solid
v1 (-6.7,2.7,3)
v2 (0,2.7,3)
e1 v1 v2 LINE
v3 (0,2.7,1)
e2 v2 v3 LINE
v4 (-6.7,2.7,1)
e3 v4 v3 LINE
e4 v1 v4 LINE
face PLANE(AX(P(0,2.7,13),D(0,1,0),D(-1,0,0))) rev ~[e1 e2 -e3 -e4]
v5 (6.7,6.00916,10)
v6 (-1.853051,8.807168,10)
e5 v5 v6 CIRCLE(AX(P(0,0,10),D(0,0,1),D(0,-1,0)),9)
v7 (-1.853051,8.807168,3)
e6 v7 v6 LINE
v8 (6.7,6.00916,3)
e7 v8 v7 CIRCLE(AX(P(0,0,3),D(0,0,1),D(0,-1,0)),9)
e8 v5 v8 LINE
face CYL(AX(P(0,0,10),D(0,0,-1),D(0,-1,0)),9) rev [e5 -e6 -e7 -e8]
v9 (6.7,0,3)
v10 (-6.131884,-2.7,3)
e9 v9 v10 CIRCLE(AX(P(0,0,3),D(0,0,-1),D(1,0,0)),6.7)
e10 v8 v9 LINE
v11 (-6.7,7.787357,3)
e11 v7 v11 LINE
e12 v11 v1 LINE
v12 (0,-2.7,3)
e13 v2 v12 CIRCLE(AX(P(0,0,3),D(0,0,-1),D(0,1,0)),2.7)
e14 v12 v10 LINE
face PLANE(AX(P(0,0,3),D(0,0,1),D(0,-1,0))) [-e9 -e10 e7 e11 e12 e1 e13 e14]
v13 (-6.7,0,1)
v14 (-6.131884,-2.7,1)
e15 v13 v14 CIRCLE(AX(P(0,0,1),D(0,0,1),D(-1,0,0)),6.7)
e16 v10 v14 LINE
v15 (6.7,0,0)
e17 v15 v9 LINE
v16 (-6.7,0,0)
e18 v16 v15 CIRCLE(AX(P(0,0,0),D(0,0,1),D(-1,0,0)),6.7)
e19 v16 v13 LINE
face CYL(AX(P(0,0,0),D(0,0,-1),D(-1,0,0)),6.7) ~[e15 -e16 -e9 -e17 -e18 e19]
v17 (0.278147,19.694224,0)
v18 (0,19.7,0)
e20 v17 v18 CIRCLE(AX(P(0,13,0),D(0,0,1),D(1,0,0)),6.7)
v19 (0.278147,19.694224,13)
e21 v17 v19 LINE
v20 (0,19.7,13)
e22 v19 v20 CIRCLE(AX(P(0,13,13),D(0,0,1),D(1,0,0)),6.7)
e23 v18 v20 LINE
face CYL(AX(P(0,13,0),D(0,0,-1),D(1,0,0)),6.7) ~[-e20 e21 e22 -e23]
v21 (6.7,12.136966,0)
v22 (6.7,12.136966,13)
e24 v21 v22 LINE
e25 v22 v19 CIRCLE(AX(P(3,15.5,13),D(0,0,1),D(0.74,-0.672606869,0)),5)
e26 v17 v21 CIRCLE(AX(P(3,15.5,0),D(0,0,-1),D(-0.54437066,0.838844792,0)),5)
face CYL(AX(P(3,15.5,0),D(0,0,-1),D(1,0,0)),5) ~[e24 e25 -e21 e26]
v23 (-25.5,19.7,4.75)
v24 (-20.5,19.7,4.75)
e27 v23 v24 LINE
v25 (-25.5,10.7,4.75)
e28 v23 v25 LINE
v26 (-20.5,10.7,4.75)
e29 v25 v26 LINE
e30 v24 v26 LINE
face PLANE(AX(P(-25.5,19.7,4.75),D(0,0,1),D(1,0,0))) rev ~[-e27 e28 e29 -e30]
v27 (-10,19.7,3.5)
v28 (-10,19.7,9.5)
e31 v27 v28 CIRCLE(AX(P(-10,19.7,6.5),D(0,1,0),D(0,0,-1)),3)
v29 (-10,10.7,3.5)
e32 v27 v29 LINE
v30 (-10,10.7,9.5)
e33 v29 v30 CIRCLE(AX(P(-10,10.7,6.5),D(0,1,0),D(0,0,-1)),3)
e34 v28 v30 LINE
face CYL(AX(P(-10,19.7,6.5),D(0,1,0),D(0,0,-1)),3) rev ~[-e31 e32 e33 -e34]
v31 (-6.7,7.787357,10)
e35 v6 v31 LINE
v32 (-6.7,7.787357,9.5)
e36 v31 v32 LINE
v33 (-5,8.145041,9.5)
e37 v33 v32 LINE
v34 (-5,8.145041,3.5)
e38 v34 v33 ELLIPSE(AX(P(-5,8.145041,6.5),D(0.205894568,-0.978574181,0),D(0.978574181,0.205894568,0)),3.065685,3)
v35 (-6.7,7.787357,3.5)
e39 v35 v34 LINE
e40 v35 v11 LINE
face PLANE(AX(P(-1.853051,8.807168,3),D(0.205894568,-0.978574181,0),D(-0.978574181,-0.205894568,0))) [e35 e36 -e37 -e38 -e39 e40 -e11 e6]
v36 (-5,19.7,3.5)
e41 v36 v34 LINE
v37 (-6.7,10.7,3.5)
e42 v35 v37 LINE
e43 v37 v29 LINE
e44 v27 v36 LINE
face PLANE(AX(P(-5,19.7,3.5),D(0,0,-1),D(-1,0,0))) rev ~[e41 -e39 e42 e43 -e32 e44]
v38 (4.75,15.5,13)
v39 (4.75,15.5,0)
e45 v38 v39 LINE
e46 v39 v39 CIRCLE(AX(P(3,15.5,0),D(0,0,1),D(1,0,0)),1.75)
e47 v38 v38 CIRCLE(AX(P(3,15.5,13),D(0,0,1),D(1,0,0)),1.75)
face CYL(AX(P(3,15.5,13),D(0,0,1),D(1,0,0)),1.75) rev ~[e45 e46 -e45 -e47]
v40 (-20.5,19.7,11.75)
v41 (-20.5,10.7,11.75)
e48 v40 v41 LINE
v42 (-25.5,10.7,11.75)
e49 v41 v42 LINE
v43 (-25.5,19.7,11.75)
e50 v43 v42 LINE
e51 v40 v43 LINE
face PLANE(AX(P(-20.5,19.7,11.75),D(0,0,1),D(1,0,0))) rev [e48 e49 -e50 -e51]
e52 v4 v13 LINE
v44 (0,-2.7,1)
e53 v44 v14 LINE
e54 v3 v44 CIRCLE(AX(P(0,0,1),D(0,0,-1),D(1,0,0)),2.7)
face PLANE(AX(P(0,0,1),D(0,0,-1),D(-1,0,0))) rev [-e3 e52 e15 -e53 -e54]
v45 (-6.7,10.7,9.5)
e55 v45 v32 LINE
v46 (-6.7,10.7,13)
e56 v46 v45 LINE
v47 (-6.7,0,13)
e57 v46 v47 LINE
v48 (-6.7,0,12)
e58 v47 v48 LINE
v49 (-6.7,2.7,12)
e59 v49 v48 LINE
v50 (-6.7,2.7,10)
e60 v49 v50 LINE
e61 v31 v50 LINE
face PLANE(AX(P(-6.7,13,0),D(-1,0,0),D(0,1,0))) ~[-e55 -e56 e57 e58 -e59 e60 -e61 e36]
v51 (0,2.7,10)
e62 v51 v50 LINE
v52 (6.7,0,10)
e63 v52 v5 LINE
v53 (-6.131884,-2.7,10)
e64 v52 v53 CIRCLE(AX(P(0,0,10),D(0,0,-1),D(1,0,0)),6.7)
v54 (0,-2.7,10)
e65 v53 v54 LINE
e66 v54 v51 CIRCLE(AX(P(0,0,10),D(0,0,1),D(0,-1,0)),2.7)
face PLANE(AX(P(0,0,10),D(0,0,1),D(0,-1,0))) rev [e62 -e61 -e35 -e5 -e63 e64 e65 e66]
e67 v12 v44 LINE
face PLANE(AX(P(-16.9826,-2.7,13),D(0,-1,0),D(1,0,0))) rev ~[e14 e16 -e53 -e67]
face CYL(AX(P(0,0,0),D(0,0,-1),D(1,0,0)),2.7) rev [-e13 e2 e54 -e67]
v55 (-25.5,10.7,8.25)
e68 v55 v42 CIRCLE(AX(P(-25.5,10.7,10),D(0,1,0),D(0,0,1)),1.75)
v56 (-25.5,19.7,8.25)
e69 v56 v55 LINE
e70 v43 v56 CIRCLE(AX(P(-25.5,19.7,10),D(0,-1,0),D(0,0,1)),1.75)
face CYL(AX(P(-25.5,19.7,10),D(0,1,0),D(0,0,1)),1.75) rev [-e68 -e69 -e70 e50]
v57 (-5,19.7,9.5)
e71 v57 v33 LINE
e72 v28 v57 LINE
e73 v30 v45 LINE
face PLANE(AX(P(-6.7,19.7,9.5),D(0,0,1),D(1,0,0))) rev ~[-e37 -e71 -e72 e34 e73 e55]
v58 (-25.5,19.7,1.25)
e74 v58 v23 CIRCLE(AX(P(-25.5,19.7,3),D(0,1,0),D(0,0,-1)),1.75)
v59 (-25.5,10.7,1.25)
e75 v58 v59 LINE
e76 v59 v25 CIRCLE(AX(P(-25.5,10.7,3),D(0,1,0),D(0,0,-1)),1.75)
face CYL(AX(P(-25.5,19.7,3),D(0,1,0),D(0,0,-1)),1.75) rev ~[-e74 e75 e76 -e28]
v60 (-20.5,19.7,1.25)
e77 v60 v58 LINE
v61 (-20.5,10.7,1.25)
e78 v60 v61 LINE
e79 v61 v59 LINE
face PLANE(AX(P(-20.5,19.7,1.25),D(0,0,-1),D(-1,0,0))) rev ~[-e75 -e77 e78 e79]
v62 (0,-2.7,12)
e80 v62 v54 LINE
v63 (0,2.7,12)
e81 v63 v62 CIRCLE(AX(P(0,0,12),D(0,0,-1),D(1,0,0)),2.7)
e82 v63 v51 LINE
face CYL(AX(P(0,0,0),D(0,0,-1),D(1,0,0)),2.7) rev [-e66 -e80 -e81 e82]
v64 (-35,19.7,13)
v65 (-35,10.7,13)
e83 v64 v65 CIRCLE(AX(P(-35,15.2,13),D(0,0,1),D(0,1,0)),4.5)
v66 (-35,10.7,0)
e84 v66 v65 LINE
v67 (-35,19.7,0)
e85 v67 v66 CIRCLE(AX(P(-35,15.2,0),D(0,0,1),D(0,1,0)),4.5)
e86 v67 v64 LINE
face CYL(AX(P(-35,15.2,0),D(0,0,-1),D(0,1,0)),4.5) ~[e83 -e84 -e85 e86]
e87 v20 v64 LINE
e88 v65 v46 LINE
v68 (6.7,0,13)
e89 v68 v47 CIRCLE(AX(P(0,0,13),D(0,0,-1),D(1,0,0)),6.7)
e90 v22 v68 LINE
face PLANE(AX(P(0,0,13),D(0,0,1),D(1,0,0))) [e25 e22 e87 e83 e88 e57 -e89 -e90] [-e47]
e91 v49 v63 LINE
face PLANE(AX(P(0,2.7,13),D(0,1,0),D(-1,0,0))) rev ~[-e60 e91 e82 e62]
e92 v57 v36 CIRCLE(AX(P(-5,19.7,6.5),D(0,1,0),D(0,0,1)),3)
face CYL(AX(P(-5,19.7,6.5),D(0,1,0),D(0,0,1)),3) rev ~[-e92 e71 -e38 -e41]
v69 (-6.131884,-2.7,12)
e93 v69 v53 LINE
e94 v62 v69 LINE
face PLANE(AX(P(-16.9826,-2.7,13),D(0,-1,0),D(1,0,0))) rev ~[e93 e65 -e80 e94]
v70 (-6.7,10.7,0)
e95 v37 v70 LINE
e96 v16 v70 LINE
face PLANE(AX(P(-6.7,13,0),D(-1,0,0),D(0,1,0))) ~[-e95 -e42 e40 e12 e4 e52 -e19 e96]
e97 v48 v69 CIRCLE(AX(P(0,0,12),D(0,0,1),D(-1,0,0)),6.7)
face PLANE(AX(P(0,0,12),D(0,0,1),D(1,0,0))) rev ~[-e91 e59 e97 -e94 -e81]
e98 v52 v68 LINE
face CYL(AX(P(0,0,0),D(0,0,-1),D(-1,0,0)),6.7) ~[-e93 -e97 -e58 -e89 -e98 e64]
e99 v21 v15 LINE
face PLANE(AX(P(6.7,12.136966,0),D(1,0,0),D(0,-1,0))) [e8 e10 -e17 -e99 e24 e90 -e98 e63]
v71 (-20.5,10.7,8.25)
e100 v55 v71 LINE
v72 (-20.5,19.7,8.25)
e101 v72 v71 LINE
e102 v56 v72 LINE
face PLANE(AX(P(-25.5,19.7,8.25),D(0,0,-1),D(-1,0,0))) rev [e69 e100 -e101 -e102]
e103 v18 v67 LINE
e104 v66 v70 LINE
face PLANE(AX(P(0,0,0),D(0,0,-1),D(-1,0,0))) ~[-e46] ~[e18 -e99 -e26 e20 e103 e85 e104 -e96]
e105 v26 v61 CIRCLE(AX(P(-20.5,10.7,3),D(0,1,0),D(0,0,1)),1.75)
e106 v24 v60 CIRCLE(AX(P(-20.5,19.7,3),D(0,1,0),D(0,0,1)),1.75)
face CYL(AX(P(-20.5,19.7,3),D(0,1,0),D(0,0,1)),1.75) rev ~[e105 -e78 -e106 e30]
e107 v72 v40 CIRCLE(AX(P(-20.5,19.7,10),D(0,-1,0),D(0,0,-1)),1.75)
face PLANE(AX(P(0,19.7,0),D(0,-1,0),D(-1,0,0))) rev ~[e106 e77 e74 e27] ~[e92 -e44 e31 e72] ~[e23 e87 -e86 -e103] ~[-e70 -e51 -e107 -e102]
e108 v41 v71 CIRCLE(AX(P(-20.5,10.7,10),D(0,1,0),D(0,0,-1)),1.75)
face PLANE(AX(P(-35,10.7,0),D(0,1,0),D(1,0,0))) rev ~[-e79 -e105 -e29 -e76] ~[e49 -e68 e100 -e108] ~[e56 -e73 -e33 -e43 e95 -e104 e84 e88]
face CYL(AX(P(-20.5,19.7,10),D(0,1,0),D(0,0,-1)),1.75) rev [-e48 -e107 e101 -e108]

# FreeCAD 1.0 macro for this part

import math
import FreeCAD as App
import Part
import Sketcher

V = App.Vector

doc = App.newDocument("Part")
body = doc.addObject("PartDesign::Body", "Body")

sketch1 = doc.addObject("Sketcher::SketchObject", "Sketch")
body.addObject(sketch1)
sketch1.AttachmentSupport = (doc.XY_Plane, [""])
sketch1.MapMode = "FlatFace"
sketch1.addGeometry(Part.LineSegment(V(-6.7, 10.7, 0), V(-6.7, 0, 0)), False)
sketch1.addGeometry(Part.ArcOfCircle(Part.Circle(V(0, 0, 0), V(0, 0, 1), 6.7), math.radians(180), math.radians(360)), False)
sketch1.addGeometry(Part.LineSegment(V(6.7, 0, 0), V(6.7, 12.136966, 0)), False)
sketch1.addGeometry(Part.ArcOfCircle(Part.Circle(V(3, 15.5, 0), V(0, 0, 1), 5), math.radians(-42.268584), math.radians(122.981667)), False)
sketch1.addGeometry(Part.ArcOfCircle(Part.Circle(V(0, 13, 0), V(0, 0, 1), 6.7), math.radians(87.620714), math.radians(90)), False)
sketch1.addGeometry(Part.LineSegment(V(0, 19.7, 0), V(-35, 19.7, 0)), False)
sketch1.addGeometry(Part.ArcOfCircle(Part.Circle(V(-35, 15.2, 0), V(0, 0, 1), 4.5), math.radians(90), math.radians(270)), False)
sketch1.addGeometry(Part.LineSegment(V(-35, 10.7, 0), V(-6.7, 10.7, 0)), False)
sketch1.addGeometry(Part.Circle(V(0, 0, 0), V(0, 0, 1), 2.7), False)
sketch1.addConstraint(Sketcher.Constraint("Tangent", 0, 2, 1, 1))
sketch1.addConstraint(Sketcher.Constraint("Tangent", 1, 2, 2, 1))
sketch1.addConstraint(Sketcher.Constraint("Coincident", 2, 2, 3, 1))
sketch1.addConstraint(Sketcher.Constraint("Coincident", 3, 2, 4, 1))
sketch1.addConstraint(Sketcher.Constraint("Tangent", 4, 2, 5, 1))
sketch1.addConstraint(Sketcher.Constraint("Tangent", 5, 2, 6, 1))
sketch1.addConstraint(Sketcher.Constraint("Tangent", 6, 2, 7, 1))
sketch1.addConstraint(Sketcher.Constraint("Coincident", 7, 2, 0, 1))
sketch1.addConstraint(Sketcher.Constraint("Vertical", 0))
sketch1.addConstraint(Sketcher.Constraint("Vertical", 2))
sketch1.addConstraint(Sketcher.Constraint("Horizontal", 5))
sketch1.addConstraint(Sketcher.Constraint("Horizontal", 7))
sketch1.addConstraint(Sketcher.Constraint("Coincident", 1, 3, -1, 1))
sketch1.addConstraint(Sketcher.Constraint("Coincident", 8, 3, -1, 1))
sketch1.addConstraint(Sketcher.Constraint("Equal", 1, 4))
sketch1.addConstraint(Sketcher.Constraint("PointOnObject", 4, 3, -2))
sketch1.addConstraint(Sketcher.Constraint("Radius", 3, 5.0))
sketch1.addConstraint(Sketcher.Constraint("Radius", 6, 4.5))
sketch1.addConstraint(Sketcher.Constraint("DistanceX", 5, 2, 5, 1, 35.0))
sketch1.addConstraint(Sketcher.Constraint("DistanceY", -1, 1, 4, 3, 13.0))
sketch1.addConstraint(Sketcher.Constraint("Diameter", 8, 5.4))
sketch1.addConstraint(Sketcher.Constraint("Radius", 1, 6.7))
sketch1.addConstraint(Sketcher.Constraint("DistanceX", -1, 1, 3, 3, 3.0))
sketch1.addConstraint(Sketcher.Constraint("DistanceY", -1, 1, 3, 3, 15.5))
pad1 = doc.addObject("PartDesign::Pad", "Pad")
body.addObject(pad1)
pad1.Profile = sketch1
pad1.Length = 13

sketch2 = doc.addObject("Sketcher::SketchObject", "Sketch001")
body.addObject(sketch2)
sketch2.AttachmentSupport = (doc.XY_Plane, [""])
sketch2.MapMode = "FlatFace"
sketch2.AttachmentOffset = App.Placement(V(0, 0, 13), App.Rotation())
sketch2.addGeometry(Part.ArcOfCircle(Part.Circle(V(0, 0, 0), V(0, 0, 1), 2.7), math.radians(-90), math.radians(90)), False)
sketch2.addGeometry(Part.LineSegment(V(0, 2.7, 0), V(-16.9826, 2.7, 0)), False)
sketch2.addGeometry(Part.ArcOfCircle(Part.Circle(V(-16.9826, 0, 0), V(0, 0, 1), 2.7), math.radians(90), math.radians(270)), False)
sketch2.addGeometry(Part.LineSegment(V(-16.9826, -2.7, 0), V(0, -2.7, 0)), False)
sketch2.addConstraint(Sketcher.Constraint("Tangent", 0, 2, 1, 1))
sketch2.addConstraint(Sketcher.Constraint("Tangent", 1, 2, 2, 1))
sketch2.addConstraint(Sketcher.Constraint("Tangent", 2, 2, 3, 1))
sketch2.addConstraint(Sketcher.Constraint("Tangent", 3, 2, 0, 1))
sketch2.addConstraint(Sketcher.Constraint("Horizontal", 1))
sketch2.addConstraint(Sketcher.Constraint("Horizontal", 3))
sketch2.addConstraint(Sketcher.Constraint("Coincident", 0, 3, -1, 1))
sketch2.addConstraint(Sketcher.Constraint("Radius", 0, 2.7))
sketch2.addConstraint(Sketcher.Constraint("DistanceX", 1, 2, 1, 1, 16.9826))
pocket1 = doc.addObject("PartDesign::Pocket", "Pocket")
body.addObject(pocket1)
pocket1.Profile = sketch2
pocket1.Type = "ThroughAll"

sketch3 = doc.addObject("Sketcher::SketchObject", "Sketch002")
body.addObject(sketch3)
sketch3.AttachmentSupport = (doc.XY_Plane, [""])
sketch3.MapMode = "FlatFace"
sketch3.AttachmentOffset = App.Placement(V(0, 0, 13), App.Rotation())
sketch3.addGeometry(Part.ArcOfCircle(Part.Circle(V(0, 0, 0), V(0, 0, 1), 6.7), math.radians(180), math.radians(360)), False)
sketch3.addGeometry(Part.LineSegment(V(6.7, 0, 0), V(6.7, 13, 0)), False)
sketch3.addGeometry(Part.LineSegment(V(6.7, 13, 0), V(-6.7, 13, 0)), False)
sketch3.addGeometry(Part.LineSegment(V(-6.7, 13, 0), V(-6.7, 0, 0)), False)
sketch3.addConstraint(Sketcher.Constraint("Tangent", 0, 2, 1, 1))
sketch3.addConstraint(Sketcher.Constraint("Coincident", 1, 2, 2, 1))
sketch3.addConstraint(Sketcher.Constraint("Coincident", 2, 2, 3, 1))
sketch3.addConstraint(Sketcher.Constraint("Tangent", 3, 2, 0, 1))
sketch3.addConstraint(Sketcher.Constraint("Vertical", 1))
sketch3.addConstraint(Sketcher.Constraint("Horizontal", 2))
sketch3.addConstraint(Sketcher.Constraint("Vertical", 3))
sketch3.addConstraint(Sketcher.Constraint("Coincident", 0, 3, -1, 1))
sketch3.addConstraint(Sketcher.Constraint("Radius", 0, 6.7))
sketch3.addConstraint(Sketcher.Constraint("DistanceY", 1, 1, 1, 2, 13.0))
pad2 = doc.addObject("PartDesign::Pad", "Pad001")
body.addObject(pad2)
pad2.Profile = sketch3
pad2.Length = 1
pad2.Reversed = True
doc.recompute()

datumplane = doc.addObject("PartDesign::Plane", "DatumPlane")
body.addObject(datumplane)
datumplane.AttachmentSupport = (doc.XY_Plane, [""])
datumplane.MapMode = "FlatFace"
datumplane.AttachmentOffset = App.Placement(V(0, 0, 6.5), App.Rotation())
mirrored = doc.addObject("PartDesign::Mirrored", "Mirrored")
body.addObject(mirrored)
mirrored.Originals = [pad2]
mirrored.MirrorPlane = (datumplane, [""])
body.Tip = mirrored

sketch4 = doc.addObject("Sketcher::SketchObject", "Sketch003")
body.addObject(sketch4)
sketch4.AttachmentSupport = (doc.XZ_Plane, [""])
sketch4.MapMode = "FlatFace"
sketch4.AttachmentOffset = App.Placement(V(0, 0, -19.7), App.Rotation())
sketch4.addGeometry(Part.ArcOfCircle(Part.Circle(V(-25.5, 3, 0), V(0, 0, 1), 1.75), math.radians(90), math.radians(270)), False)
sketch4.addGeometry(Part.LineSegment(V(-25.5, 4.75, 0), V(-20.5, 4.75, 0)), False)
sketch4.addGeometry(Part.ArcOfCircle(Part.Circle(V(-20.5, 3, 0), V(0, 0, 1), 1.75), math.radians(-90), math.radians(90)), False)
sketch4.addGeometry(Part.LineSegment(V(-20.5, 1.25, 0), V(-25.5, 1.25, 0)), False)
sketch4.addConstraint(Sketcher.Constraint("Tangent", 0, 1, 1, 1))
sketch4.addConstraint(Sketcher.Constraint("Tangent", 1, 2, 2, 2))
sketch4.addConstraint(Sketcher.Constraint("Tangent", 2, 1, 3, 1))
sketch4.addConstraint(Sketcher.Constraint("Tangent", 3, 2, 0, 2))
sketch4.addConstraint(Sketcher.Constraint("Horizontal", 1))
sketch4.addConstraint(Sketcher.Constraint("Horizontal", 3))
sketch4.addConstraint(Sketcher.Constraint("DistanceX", 1, 1, 1, 2, 5.0))
sketch4.addConstraint(Sketcher.Constraint("Radius", 0, 1.75))
sketch4.addConstraint(Sketcher.Constraint("DistanceY", -1, 1, 0, 3, 3.0))
sketch4.addConstraint(Sketcher.Constraint("DistanceX", 0, 3, -1, 1, 25.5))
pocket2 = doc.addObject("PartDesign::Pocket", "Pocket001")
body.addObject(pocket2)
pocket2.Profile = sketch4
pocket2.Type = "ThroughAll"
pocket2.Reversed = True

sketch5 = doc.addObject("Sketcher::SketchObject", "Sketch004")
body.addObject(sketch5)
sketch5.AttachmentSupport = (doc.YZ_Plane, [""])
sketch5.MapMode = "FlatFace"
sketch5.addGeometry(Part.LineSegment(V(0, 10, 0), V(-9, 10, 0)), False)
sketch5.addGeometry(Part.LineSegment(V(-9, 10, 0), V(-9, 3, 0)), False)
sketch5.addGeometry(Part.LineSegment(V(-9, 3, 0), V(0, 3, 0)), False)
sketch5.addGeometry(Part.LineSegment(V(0, 3, 0), V(0, 10, 0)), False)
sketch5.addConstraint(Sketcher.Constraint("Coincident", 0, 2, 1, 1))
sketch5.addConstraint(Sketcher.Constraint("Coincident", 1, 2, 2, 1))
sketch5.addConstraint(Sketcher.Constraint("Coincident", 2, 2, 3, 1))
sketch5.addConstraint(Sketcher.Constraint("Coincident", 3, 2, 0, 1))
sketch5.addConstraint(Sketcher.Constraint("Horizontal", 0))
sketch5.addConstraint(Sketcher.Constraint("Vertical", 1))
sketch5.addConstraint(Sketcher.Constraint("Horizontal", 2))
sketch5.addConstraint(Sketcher.Constraint("Vertical", 3))
sketch5.addConstraint(Sketcher.Constraint("PointOnObject", 2, 2, -2))
sketch5.addConstraint(Sketcher.Constraint("DistanceX", 0, 2, 0, 1, 9.0))
sketch5.addConstraint(Sketcher.Constraint("DistanceY", 1, 2, 1, 1, 7.0))
sketch5.addConstraint(Sketcher.Constraint("DistanceY", -1, 1, 0, 2, 10.0))
groove = doc.addObject("PartDesign::Groove", "Groove")
body.addObject(groove)
groove.Profile = sketch5
groove.ReferenceAxis = (sketch5, ["V_Axis"])
groove.Angle = 360

sketch6 = doc.addObject("Sketcher::SketchObject", "Sketch005")
body.addObject(sketch6)
sketch6.AttachmentSupport = (doc.XY_Plane, [""])
sketch6.MapMode = "FlatFace"
sketch6.AttachmentOffset = App.Placement(V(0, 0, 13), App.Rotation())
sketch6.addGeometry(Part.Circle(V(3, 15.5, 0), V(0, 0, 1), 1.75), False)
sketch6.addConstraint(Sketcher.Constraint("Diameter", 0, 3.5))
sketch6.addConstraint(Sketcher.Constraint("DistanceX", -1, 1, 0, 3, 3.0))
sketch6.addConstraint(Sketcher.Constraint("DistanceY", -1, 1, 0, 3, 15.5))
pocket3 = doc.addObject("PartDesign::Pocket", "Pocket002")
body.addObject(pocket3)
pocket3.Profile = sketch6
pocket3.Type = "ThroughAll"

sketch7 = doc.addObject("Sketcher::SketchObject", "Sketch006")
body.addObject(sketch7)
sketch7.AttachmentSupport = (doc.XY_Plane, [""])
sketch7.MapMode = "FlatFace"
sketch7.AttachmentOffset = App.Placement(V(0, 0, 3), App.Rotation())
sketch7.addGeometry(Part.LineSegment(V(-8.409498, 7.427674, 0), V(-4.703396, -10.186661, 0)), False)
sketch7.addGeometry(Part.LineSegment(V(-4.703396, -10.186661, 0), V(1.853051, -8.807168, 0)), False)
sketch7.addGeometry(Part.LineSegment(V(1.853051, -8.807168, 0), V(-1.853051, 8.807168, 0)), False)
sketch7.addGeometry(Part.LineSegment(V(-1.853051, 8.807168, 0), V(-8.409498, 7.427674, 0)), False)
sketch7.addConstraint(Sketcher.Constraint("Coincident", 0, 2, 1, 1))
sketch7.addConstraint(Sketcher.Constraint("Coincident", 1, 2, 2, 1))
sketch7.addConstraint(Sketcher.Constraint("Coincident", 2, 2, 3, 1))
sketch7.addConstraint(Sketcher.Constraint("Coincident", 3, 2, 0, 1))
sketch7.addConstraint(Sketcher.Constraint("Symmetric", 1, 2, 2, 2, -1, 1))
sketch7.addConstraint(Sketcher.Constraint("Perpendicular", 0, 1))
sketch7.addConstraint(Sketcher.Constraint("Perpendicular", 1, 2))
sketch7.addConstraint(Sketcher.Constraint("Perpendicular", 2, 3))
sketch7.addConstraint(Sketcher.Constraint("Distance", 0, 18.0))
sketch7.addConstraint(Sketcher.Constraint("Distance", 1, 6.7))
sketch7.addConstraint(Sketcher.Constraint("DistanceX", -1, 1, 1, 2, 1.853))
pocket4 = doc.addObject("PartDesign::Pocket", "Pocket003")
body.addObject(pocket4)
pocket4.Profile = sketch7
pocket4.Length = 7
pocket4.Reversed = True
doc.recompute()

datumplane2 = doc.addObject("PartDesign::Plane", "DatumPlane001")
body.addObject(datumplane2)
datumplane2.AttachmentSupport = (doc.XY_Plane, [""])
datumplane2.MapMode = "FlatFace"
datumplane2.AttachmentOffset = App.Placement(V(0, 0, 6.5), App.Rotation())
mirrored2 = doc.addObject("PartDesign::Mirrored", "Mirrored001")
body.addObject(mirrored2)
mirrored2.Originals = [pocket2]
mirrored2.MirrorPlane = (datumplane2, [""])
body.Tip = mirrored2

sketch8 = doc.addObject("Sketcher::SketchObject", "Sketch007")
body.addObject(sketch8)
sketch8.AttachmentSupport = (doc.XZ_Plane, [""])
sketch8.MapMode = "FlatFace"
sketch8.AttachmentOffset = App.Placement(V(0, 0, -19.7), App.Rotation())
sketch8.addGeometry(Part.LineSegment(V(-5, 3.5, 0), V(-10, 3.5, 0)), False)
sketch8.addGeometry(Part.ArcOfCircle(Part.Circle(V(-10, 6.5, 0), V(0, 0, 1), 3), math.radians(90), math.radians(270)), False)
sketch8.addGeometry(Part.LineSegment(V(-10, 9.5, 0), V(-5, 9.5, 0)), False)
sketch8.addGeometry(Part.ArcOfCircle(Part.Circle(V(-5, 6.5, 0), V(0, 0, 1), 3), math.radians(-90), math.radians(90)), False)
sketch8.addConstraint(Sketcher.Constraint("Tangent", 0, 2, 1, 2))
sketch8.addConstraint(Sketcher.Constraint("Tangent", 1, 1, 2, 1))
sketch8.addConstraint(Sketcher.Constraint("Tangent", 2, 2, 3, 2))
sketch8.addConstraint(Sketcher.Constraint("Tangent", 3, 1, 0, 1))
sketch8.addConstraint(Sketcher.Constraint("Horizontal", 0))
sketch8.addConstraint(Sketcher.Constraint("Horizontal", 2))
sketch8.addConstraint(Sketcher.Constraint("Radius", 1, 3.0))
sketch8.addConstraint(Sketcher.Constraint("DistanceX", 0, 2, 0, 1, 5.0))
sketch8.addConstraint(Sketcher.Constraint("DistanceX", 3, 3, -1, 1, 5.0))
sketch8.addConstraint(Sketcher.Constraint("DistanceY", -1, 1, 1, 3, 6.5))
pocket5 = doc.addObject("PartDesign::Pocket", "Pocket004")
body.addObject(pocket5)
pocket5.Profile = sketch8
pocket5.Type = "ThroughAll"
pocket5.Reversed = True

doc.recompute()
